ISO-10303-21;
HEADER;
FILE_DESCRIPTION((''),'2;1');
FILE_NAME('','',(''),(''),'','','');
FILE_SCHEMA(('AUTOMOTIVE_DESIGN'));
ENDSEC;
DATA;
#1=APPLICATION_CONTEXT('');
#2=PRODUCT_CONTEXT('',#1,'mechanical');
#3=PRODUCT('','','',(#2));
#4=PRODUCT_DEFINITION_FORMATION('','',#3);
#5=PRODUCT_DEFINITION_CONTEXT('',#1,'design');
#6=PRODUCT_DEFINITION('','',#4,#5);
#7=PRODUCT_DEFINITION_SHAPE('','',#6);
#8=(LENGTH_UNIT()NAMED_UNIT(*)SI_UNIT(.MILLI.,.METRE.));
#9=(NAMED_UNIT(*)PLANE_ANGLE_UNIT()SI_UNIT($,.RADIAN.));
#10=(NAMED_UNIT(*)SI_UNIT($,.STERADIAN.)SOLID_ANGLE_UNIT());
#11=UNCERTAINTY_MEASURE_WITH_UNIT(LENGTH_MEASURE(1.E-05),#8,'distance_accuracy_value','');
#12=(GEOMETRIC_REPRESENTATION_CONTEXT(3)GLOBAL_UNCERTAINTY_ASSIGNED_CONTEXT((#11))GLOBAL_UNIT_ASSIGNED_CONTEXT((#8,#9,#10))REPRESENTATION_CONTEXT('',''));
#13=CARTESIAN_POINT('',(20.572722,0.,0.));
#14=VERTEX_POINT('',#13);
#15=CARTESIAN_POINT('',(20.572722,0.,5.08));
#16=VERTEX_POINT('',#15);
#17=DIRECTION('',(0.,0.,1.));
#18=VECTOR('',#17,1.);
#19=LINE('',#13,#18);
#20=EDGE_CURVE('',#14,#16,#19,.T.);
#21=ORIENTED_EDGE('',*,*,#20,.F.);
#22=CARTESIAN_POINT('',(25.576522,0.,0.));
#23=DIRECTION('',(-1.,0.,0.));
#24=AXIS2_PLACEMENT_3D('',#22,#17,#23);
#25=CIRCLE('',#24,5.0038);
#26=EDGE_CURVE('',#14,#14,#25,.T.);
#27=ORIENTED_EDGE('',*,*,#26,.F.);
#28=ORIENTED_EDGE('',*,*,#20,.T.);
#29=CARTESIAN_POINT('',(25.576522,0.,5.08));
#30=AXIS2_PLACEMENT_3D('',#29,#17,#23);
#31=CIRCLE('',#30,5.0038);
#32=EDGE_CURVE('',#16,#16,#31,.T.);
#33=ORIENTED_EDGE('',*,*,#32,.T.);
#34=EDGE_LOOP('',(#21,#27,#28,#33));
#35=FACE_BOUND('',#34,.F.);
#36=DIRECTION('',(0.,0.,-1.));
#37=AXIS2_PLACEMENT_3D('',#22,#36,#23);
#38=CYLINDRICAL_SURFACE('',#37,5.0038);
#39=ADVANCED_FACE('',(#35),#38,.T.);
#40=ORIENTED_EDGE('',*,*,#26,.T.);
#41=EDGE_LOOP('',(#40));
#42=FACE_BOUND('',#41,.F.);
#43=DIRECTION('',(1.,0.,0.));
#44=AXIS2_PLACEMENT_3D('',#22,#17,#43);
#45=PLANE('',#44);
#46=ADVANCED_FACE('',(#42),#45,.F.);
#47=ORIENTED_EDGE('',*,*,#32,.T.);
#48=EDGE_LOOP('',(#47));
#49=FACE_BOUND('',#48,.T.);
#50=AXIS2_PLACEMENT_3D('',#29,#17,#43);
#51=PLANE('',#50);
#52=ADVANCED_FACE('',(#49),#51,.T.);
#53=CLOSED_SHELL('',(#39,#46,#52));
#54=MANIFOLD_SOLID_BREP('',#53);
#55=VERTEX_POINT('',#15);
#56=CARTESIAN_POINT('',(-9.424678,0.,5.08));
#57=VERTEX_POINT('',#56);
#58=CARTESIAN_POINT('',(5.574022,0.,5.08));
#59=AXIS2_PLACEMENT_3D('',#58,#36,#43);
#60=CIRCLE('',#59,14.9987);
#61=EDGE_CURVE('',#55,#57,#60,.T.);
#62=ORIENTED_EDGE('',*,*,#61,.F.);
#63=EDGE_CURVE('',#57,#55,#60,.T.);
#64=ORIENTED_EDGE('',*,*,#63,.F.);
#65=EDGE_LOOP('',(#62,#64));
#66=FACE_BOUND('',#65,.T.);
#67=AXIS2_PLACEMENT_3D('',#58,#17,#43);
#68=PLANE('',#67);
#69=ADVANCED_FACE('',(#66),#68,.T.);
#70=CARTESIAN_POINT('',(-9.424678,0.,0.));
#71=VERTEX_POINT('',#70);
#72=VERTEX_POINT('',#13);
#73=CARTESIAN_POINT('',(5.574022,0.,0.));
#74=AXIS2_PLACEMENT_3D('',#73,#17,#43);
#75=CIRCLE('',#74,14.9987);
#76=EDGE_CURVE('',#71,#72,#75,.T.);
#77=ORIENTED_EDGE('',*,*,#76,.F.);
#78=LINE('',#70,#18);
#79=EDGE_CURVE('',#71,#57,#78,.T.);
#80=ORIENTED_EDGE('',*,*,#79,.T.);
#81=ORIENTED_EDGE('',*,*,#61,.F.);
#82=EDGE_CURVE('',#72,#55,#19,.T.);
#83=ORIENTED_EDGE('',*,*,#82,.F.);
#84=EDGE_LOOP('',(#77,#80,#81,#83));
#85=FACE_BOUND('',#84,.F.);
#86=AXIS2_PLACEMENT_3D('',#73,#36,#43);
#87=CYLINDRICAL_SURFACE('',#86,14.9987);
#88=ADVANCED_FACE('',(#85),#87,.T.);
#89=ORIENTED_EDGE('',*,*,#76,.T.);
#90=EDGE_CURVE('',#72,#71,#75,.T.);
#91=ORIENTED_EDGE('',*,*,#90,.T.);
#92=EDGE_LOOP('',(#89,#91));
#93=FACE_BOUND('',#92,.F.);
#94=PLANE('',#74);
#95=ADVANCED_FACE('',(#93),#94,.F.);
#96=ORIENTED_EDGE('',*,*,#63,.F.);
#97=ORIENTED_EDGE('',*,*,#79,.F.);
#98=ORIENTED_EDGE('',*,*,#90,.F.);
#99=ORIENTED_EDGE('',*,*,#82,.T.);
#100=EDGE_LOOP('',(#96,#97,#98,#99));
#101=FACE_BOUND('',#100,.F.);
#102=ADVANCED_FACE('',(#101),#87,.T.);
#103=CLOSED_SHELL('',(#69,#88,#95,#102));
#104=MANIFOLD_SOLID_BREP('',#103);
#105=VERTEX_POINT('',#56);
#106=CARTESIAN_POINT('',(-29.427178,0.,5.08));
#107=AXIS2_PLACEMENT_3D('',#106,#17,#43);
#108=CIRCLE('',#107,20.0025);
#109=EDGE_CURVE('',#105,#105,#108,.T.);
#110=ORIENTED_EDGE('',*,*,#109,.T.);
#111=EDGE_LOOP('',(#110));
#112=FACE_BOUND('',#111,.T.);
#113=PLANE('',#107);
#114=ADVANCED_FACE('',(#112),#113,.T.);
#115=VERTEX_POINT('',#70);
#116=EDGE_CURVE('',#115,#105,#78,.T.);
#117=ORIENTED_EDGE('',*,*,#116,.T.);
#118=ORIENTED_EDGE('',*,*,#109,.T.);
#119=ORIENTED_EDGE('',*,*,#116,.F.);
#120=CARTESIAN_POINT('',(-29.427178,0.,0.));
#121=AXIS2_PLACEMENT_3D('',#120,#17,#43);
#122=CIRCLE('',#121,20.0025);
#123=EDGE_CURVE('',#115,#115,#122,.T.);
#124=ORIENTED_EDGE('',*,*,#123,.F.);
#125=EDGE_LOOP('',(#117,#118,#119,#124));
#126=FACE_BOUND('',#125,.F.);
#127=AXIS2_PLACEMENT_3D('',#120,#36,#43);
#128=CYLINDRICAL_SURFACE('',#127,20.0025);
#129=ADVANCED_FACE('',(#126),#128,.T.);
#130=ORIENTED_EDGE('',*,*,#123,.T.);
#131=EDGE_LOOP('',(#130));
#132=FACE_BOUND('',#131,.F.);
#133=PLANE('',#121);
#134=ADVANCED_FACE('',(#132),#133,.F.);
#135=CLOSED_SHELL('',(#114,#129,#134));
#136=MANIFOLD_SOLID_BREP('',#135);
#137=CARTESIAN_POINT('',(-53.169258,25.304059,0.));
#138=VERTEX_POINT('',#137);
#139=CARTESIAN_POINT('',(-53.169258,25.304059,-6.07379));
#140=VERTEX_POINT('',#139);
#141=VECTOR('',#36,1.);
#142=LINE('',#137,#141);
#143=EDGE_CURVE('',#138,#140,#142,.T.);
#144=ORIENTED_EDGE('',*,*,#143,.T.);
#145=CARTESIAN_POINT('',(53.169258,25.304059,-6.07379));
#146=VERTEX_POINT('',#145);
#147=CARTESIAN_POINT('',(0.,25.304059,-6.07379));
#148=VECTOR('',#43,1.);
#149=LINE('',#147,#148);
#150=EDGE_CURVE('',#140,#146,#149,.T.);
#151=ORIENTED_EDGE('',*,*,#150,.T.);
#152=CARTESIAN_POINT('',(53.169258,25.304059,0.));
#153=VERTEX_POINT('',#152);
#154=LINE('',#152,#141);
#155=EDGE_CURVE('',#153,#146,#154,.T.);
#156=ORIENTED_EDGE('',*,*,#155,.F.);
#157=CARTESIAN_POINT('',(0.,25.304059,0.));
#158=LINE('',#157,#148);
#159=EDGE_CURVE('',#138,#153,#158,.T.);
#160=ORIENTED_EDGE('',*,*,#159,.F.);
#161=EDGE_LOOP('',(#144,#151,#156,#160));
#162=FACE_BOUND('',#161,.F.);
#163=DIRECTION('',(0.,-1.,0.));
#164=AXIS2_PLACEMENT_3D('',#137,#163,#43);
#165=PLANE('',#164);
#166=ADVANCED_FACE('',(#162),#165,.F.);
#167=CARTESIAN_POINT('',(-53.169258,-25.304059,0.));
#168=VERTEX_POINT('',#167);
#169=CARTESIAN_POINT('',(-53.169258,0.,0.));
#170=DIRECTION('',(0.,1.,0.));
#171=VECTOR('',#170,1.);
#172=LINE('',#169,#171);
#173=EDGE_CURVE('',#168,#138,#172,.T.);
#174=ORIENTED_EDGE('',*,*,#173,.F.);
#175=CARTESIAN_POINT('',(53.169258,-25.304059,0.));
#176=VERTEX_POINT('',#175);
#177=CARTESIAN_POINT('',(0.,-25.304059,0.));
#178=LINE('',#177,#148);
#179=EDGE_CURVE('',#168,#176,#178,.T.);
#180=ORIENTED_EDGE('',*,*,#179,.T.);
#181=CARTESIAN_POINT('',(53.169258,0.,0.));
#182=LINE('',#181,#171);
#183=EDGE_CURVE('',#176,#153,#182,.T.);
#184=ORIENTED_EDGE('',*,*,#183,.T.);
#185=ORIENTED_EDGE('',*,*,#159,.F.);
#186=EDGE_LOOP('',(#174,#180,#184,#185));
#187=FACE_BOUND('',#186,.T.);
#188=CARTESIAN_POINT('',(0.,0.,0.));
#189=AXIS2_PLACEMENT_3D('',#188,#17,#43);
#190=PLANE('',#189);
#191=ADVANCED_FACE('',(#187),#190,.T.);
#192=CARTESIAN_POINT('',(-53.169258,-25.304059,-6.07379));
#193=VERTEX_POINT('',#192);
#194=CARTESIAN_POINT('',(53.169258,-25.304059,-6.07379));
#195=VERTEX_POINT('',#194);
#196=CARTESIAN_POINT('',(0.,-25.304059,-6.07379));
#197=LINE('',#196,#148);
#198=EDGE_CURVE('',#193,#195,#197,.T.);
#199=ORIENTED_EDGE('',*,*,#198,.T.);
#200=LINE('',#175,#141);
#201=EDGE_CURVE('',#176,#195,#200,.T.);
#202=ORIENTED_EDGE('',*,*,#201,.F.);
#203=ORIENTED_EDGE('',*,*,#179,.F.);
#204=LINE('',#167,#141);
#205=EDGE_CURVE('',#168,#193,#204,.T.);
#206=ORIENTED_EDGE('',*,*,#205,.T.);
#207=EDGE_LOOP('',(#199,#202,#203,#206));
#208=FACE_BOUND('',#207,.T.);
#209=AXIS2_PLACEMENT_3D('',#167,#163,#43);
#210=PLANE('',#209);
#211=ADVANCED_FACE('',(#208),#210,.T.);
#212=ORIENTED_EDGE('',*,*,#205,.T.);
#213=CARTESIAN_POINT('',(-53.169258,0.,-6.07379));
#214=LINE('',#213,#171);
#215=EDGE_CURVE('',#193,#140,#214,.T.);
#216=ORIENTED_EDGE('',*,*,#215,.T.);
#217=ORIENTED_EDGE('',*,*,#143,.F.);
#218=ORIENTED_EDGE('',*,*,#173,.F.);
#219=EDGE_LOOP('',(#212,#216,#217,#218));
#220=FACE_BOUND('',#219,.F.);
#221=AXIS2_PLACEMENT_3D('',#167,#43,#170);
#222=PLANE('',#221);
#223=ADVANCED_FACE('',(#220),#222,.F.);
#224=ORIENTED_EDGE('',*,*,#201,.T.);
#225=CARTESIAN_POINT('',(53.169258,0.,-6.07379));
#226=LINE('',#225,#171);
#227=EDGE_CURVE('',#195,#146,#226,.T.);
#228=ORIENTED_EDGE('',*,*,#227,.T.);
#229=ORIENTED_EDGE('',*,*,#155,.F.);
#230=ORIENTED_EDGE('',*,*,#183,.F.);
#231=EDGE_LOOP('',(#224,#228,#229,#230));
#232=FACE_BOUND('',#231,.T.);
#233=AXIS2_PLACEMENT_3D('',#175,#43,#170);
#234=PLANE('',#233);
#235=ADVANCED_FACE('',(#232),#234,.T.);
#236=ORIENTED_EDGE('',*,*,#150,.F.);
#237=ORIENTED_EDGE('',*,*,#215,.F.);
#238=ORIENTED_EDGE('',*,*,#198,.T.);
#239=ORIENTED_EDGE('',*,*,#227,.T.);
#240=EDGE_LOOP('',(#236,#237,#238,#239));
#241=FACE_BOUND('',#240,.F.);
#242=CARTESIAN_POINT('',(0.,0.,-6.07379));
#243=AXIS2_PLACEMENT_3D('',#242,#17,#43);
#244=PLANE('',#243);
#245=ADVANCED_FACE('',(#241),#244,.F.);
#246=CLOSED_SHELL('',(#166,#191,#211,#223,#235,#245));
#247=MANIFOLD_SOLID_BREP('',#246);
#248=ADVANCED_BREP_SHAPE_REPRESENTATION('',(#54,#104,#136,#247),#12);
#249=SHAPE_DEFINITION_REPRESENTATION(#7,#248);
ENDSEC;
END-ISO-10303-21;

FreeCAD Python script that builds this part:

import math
import FreeCAD as App
import Part
import Sketcher
from FreeCAD import Vector
Q = App.Units.Quantity

doc = App.newDocument("Part")
body = doc.addObject("PartDesign::Body", "Body")
body.AllowCompound = True

# Sketch on XY plane
sketch1 = body.newObject("Sketcher::SketchObject", "Sketch")
sketch1.AttachmentSupport = (doc.getObject("XY_Plane"), [""])
sketch1.MapMode = "FlatFace"
sketch1.addGeometry(Part.Circle(Vector(26, 0, 0), Vector(0, 0, 1), 5), False)
sketch1.addGeometry(Part.ArcOfCircle(Part.Circle(Vector(6, 0, 0), Vector(0, 0, 1), 15), math.radians(0), math.radians(180)), False)
sketch1.addGeometry(Part.ArcOfCircle(Part.Circle(Vector(6, 0, 0), Vector(0, 0, 1), 15), math.radians(180), math.radians(360)), False)
sketch1.addGeometry(Part.Circle(Vector(-29, 0, 0), Vector(0, 0, 1), 20), False)
sketch1.addConstraint(Sketcher.Constraint("Tangent", 1, 1, 2, 2))
sketch1.addConstraint(Sketcher.Constraint("Coincident", 2, 1, 1, 2))
sketch1.addConstraint(Sketcher.Constraint("PointOnObject", 0, 3, -1))
sketch1.addConstraint(Sketcher.Constraint("PointOnObject", 1, 3, -1))
sketch1.addConstraint(Sketcher.Constraint("PointOnObject", 3, 3, -1))
sketch1.addConstraint(Sketcher.Constraint("PointOnObject", 1, 1, -1))
sketch1.addConstraint(Sketcher.Constraint("PointOnObject", 2, 1, -1))
sketch1.addConstraint(Sketcher.Constraint("Diameter", 0, Q("0.394 in")))
sketch1.addConstraint(Sketcher.Constraint("Diameter", 3, Q("1.575 in")))
sketch1.addConstraint(Sketcher.Constraint("Radius", 1, Q("0.5905 in")))
sketch1.addConstraint(Sketcher.Constraint("DistanceX", 3, 3, 1, 3, Q("1.378 in")))
sketch1.addConstraint(Sketcher.Constraint("DistanceX", 1, 1, 0, 3, Q("0.197 in")))
sketch1.addConstraint(Sketcher.Constraint("DistanceX", 3, 3, -1, 1, Q("29.427178 mm")))
pad1 = body.newObject("PartDesign::Pad", "Pad")
pad1.Profile = sketch1
pad1.Length = Q("0.2 in")
body2 = doc.addObject("PartDesign::Body", "Body001")

# Sketch on XY plane
sketch2 = body2.newObject("Sketcher::SketchObject", "Sketch001")
sketch2.AttachmentSupport = (doc.getObject("XY_Plane001"), [""])
sketch2.MapMode = "FlatFace"
sketch2.addGeometry(Part.LineSegment(Vector(-53, 25, 0), Vector(-53, -25, 0)), False)
sketch2.addGeometry(Part.LineSegment(Vector(-53, -25, 0), Vector(53, -25, 0)), False)
sketch2.addGeometry(Part.LineSegment(Vector(53, -25, 0), Vector(53, 25, 0)), False)
sketch2.addGeometry(Part.LineSegment(Vector(53, 25, 0), Vector(-53, 25, 0)), False)
sketch2.addConstraint(Sketcher.Constraint("Coincident", 0, 2, 1, 1))
sketch2.addConstraint(Sketcher.Constraint("Coincident", 1, 2, 2, 1))
sketch2.addConstraint(Sketcher.Constraint("Coincident", 2, 2, 3, 1))
sketch2.addConstraint(Sketcher.Constraint("Coincident", 3, 2, 0, 1))
sketch2.addConstraint(Sketcher.Constraint("Vertical", 0))
sketch2.addConstraint(Sketcher.Constraint("Horizontal", 1))
sketch2.addConstraint(Sketcher.Constraint("Vertical", 2))
sketch2.addConstraint(Sketcher.Constraint("Horizontal", 3))
sketch2.addConstraint(Sketcher.Constraint("Symmetric", 0, 2, 2, 2, -1, 1))
sketch2.addConstraint(Sketcher.Constraint("DistanceX", 1, 1, 1, 2, Q("106.338516 mm")))
sketch2.addConstraint(Sketcher.Constraint("DistanceY", 0, 2, 0, 1, Q("50.608118 mm")))
pad2 = body2.newObject("PartDesign::Pad", "Pad001")
pad2.Profile = sketch2
pad2.Length = 6.07379
pad2.Reversed = True

doc.recompute()
